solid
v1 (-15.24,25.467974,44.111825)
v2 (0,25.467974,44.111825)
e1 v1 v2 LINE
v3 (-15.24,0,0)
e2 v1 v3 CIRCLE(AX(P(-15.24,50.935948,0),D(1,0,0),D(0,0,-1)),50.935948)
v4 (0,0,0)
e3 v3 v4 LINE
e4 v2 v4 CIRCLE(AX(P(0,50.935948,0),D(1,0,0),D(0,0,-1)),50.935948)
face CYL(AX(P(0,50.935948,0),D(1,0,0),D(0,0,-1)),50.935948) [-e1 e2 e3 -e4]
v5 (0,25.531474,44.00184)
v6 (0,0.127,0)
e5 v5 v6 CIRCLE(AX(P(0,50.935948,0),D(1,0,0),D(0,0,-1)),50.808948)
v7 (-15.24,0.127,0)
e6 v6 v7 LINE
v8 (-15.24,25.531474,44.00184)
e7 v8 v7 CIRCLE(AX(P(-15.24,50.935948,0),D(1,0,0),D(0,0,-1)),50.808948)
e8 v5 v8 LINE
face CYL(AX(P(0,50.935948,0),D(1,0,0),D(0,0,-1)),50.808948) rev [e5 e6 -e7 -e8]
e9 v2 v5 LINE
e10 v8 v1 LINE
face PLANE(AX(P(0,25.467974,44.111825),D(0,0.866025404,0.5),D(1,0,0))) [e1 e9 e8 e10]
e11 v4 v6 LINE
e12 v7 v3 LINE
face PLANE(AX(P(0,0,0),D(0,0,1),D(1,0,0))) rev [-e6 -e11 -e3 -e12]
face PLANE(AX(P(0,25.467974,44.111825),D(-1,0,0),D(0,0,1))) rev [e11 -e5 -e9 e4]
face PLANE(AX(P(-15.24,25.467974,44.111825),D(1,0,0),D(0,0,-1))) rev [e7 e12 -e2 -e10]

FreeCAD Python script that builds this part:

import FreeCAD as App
import Part
import Sketcher
from FreeCAD import Vector
Q = App.Units.Quantity


def add_polygon(sketch, points):
    """Adds a closed chain of lines whose ends are joined by coincident constraints."""
    first, n = sketch.GeometryCount, len(points)
    for a, b in zip(points, points[1:] + points[:1]):
        sketch.addGeometry(Part.LineSegment(App.Vector(*a, 0), App.Vector(*b, 0)), False)
    for i in range(n):
        sketch.addConstraint(Sketcher.Constraint("Coincident", first + i, 2, first + (i + 1) % n, 1))

doc = App.newDocument("Part")
body = doc.addObject("PartDesign::Body", "Body")

sketch1 = body.newObject("Sketcher::SketchObject", "Sketch")
sketch1.AttachmentSupport = (doc.getObject("XY_Plane"), [""])
sketch1.MapMode = "FlatFace"
add_polygon(sketch1, [(-15.24, 0.13), (-15.24, 0), (0, 0), (0, 0.13)])
sketch1.addGeometry(Part.LineSegment(Vector(0, 50.94, 0), Vector(-15.24, 50.94, 0)), True)
sketch1.addConstraint(Sketcher.Constraint("Vertical", 0))
sketch1.addConstraint(Sketcher.Constraint("Horizontal", 1))
sketch1.addConstraint(Sketcher.Constraint("Vertical", 2))
sketch1.addConstraint(Sketcher.Constraint("Horizontal", 3))
sketch1.addConstraint(Sketcher.Constraint("Horizontal", 4))
sketch1.addConstraint(Sketcher.Constraint("Coincident", 1, 2, -1, 1))
sketch1.addConstraint(Sketcher.Constraint("PointOnObject", 4, 1, -2))
sketch1.addConstraint(Sketcher.Constraint("Vertical", 3, 2, 4, 2))
sketch1.addConstraint(Sketcher.Constraint("DistanceX", 1, 1, 1, 2, Q("0.6 in")))
sketch1.addConstraint(Sketcher.Constraint("DistanceY", 0, 2, 0, 1, Q("0.005 in")))
sketch1.addConstraint(Sketcher.Constraint("DistanceY", -1, 1, 4, 1, 50.935948))
revolution = body.newObject("PartDesign::Revolution", "Revolution")
revolution.Profile = sketch1
revolution.ReferenceAxis = (sketch1, ["Axis0"])
revolution.Angle = 60

doc.recompute()
